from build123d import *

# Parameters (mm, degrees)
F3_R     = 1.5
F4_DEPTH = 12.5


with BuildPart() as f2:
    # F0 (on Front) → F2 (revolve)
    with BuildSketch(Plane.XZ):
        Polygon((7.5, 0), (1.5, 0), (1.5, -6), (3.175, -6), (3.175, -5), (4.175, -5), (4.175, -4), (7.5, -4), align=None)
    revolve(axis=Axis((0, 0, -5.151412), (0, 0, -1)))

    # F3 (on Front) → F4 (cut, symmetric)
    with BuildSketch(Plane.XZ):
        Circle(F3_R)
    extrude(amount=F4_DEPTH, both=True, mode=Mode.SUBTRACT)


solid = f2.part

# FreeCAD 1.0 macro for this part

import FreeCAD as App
import Part
import Sketcher

doc = App.newDocument("Part")
body = doc.addObject("PartDesign::Body", "Body")

# Sketch on XZ plane
sketch1 = body.newObject("Sketcher::SketchObject", "Sketch")
sketch1.AttachmentSupport = (doc.getObject("XZ_Plane"), [""])
sketch1.MapMode = "FlatFace"
sketch1.addGeometry(Part.LineSegment(App.Vector(7.5, 0, 0), App.Vector(1.5, 0, 0)), False)
sketch1.addGeometry(Part.LineSegment(App.Vector(1.5, 0, 0), App.Vector(1.5, -6, 0)), False)
sketch1.addGeometry(Part.LineSegment(App.Vector(1.5, -6, 0), App.Vector(3.2, -6, 0)), False)
sketch1.addGeometry(Part.LineSegment(App.Vector(3.2, -6, 0), App.Vector(3.2, -5, 0)), False)
sketch1.addGeometry(Part.LineSegment(App.Vector(3.2, -5, 0), App.Vector(4.2, -5, 0)), False)
sketch1.addGeometry(Part.LineSegment(App.Vector(4.2, -5, 0), App.Vector(4.2, -4, 0)), False)
sketch1.addGeometry(Part.LineSegment(App.Vector(4.2, -4, 0), App.Vector(7.5, -4, 0)), False)
sketch1.addGeometry(Part.LineSegment(App.Vector(7.5, -4, 0), App.Vector(7.5, 0, 0)), False)
sketch1.addConstraint(Sketcher.Constraint("Coincident", 0, 2, 1, 1))
sketch1.addConstraint(Sketcher.Constraint("Coincident", 1, 2, 2, 1))
sketch1.addConstraint(Sketcher.Constraint("Coincident", 2, 2, 3, 1))
sketch1.addConstraint(Sketcher.Constraint("Coincident", 3, 2, 4, 1))
sketch1.addConstraint(Sketcher.Constraint("Coincident", 4, 2, 5, 1))
sketch1.addConstraint(Sketcher.Constraint("Coincident", 5, 2, 6, 1))
sketch1.addConstraint(Sketcher.Constraint("Coincident", 6, 2, 7, 1))
sketch1.addConstraint(Sketcher.Constraint("Coincident", 7, 2, 0, 1))
sketch1.addConstraint(Sketcher.Constraint("Horizontal", 0))
sketch1.addConstraint(Sketcher.Constraint("Vertical", 1))
sketch1.addConstraint(Sketcher.Constraint("Horizontal", 2))
sketch1.addConstraint(Sketcher.Constraint("Vertical", 3))
sketch1.addConstraint(Sketcher.Constraint("Horizontal", 4))
sketch1.addConstraint(Sketcher.Constraint("Vertical", 5))
sketch1.addConstraint(Sketcher.Constraint("Horizontal", 6))
sketch1.addConstraint(Sketcher.Constraint("Vertical", 7))
sketch1.addConstraint(Sketcher.Constraint("PointOnObject", 0, 2, -1))
sketch1.addConstraint(Sketcher.Constraint("Equal", 0, 1))
sketch1.addConstraint(Sketcher.Constraint("Equal", 4, 3))
sketch1.addConstraint(Sketcher.Constraint("Equal", 3, 5))
sketch1.addConstraint(Sketcher.Constraint("DistanceX", 0, 2, 0, 1, 6.0))
sketch1.addConstraint(Sketcher.Constraint("DistanceX", 4, 1, 4, 2, 1.0))
sketch1.addConstraint(Sketcher.Constraint("DistanceX", -1, 1, 0, 2, 1.5))
sketch1.addConstraint(Sketcher.Constraint("DistanceX", 2, 1, 2, 2, 1.675))
revolution = body.newObject("PartDesign::Revolution", "Revolution")
revolution.Profile = sketch1
revolution.ReferenceAxis = (sketch1, ["V_Axis"])
revolution.Angle = 360

# Sketch on XZ plane
sketch2 = body.newObject("Sketcher::SketchObject", "Sketch001")
sketch2.AttachmentSupport = (doc.getObject("XZ_Plane"), [""])
sketch2.MapMode = "FlatFace"
sketch2.addGeometry(Part.Circle(App.Vector(0, 0, 0), App.Vector(0, 0, 1), 1.5), False)
sketch2.addConstraint(Sketcher.Constraint("Coincident", 0, 3, -1, 1))
sketch2.addConstraint(Sketcher.Constraint("Diameter", 0, 3.0))
pocket1 = body.newObject("PartDesign::Pocket", "Pocket")
pocket1.Profile = sketch2
pocket1.Length = 25
pocket1.Midplane = True

doc.recompute()
